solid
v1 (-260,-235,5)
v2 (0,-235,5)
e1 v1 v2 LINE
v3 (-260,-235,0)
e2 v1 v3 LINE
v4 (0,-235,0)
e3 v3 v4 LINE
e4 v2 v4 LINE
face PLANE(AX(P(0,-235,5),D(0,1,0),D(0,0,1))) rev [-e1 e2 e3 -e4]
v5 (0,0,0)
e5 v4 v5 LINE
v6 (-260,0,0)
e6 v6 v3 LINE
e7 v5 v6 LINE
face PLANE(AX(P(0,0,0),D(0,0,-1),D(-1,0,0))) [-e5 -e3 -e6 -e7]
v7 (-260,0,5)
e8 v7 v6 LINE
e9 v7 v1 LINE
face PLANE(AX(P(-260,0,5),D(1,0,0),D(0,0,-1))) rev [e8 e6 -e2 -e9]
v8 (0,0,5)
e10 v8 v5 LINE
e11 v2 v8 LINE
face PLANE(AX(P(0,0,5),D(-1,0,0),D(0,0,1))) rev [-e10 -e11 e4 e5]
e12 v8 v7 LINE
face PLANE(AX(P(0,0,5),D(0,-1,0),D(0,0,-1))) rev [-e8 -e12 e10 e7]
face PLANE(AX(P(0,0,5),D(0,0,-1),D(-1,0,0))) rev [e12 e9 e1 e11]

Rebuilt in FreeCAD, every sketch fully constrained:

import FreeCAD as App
import Part
import Sketcher

doc = App.newDocument("Part")
body = doc.addObject("PartDesign::Body", "Body")

# Sketch on XY plane
sketch1 = body.newObject("Sketcher::SketchObject", "Sketch")
sketch1.AttachmentSupport = (doc.getObject("XY_Plane"), [""])
sketch1.MapMode = "FlatFace"
sketch1.addGeometry(Part.LineSegment(App.Vector(-260, 0, 0), App.Vector(-260, -235, 0)), False)
sketch1.addGeometry(Part.LineSegment(App.Vector(-260, -235, 0), App.Vector(0, -235, 0)), False)
sketch1.addGeometry(Part.LineSegment(App.Vector(0, -235, 0), App.Vector(0, 0, 0)), False)
sketch1.addGeometry(Part.LineSegment(App.Vector(0, 0, 0), App.Vector(-260, 0, 0)), False)
sketch1.addConstraint(Sketcher.Constraint("Coincident", 0, 2, 1, 1))
sketch1.addConstraint(Sketcher.Constraint("Coincident", 1, 2, 2, 1))
sketch1.addConstraint(Sketcher.Constraint("Coincident", 2, 2, 3, 1))
sketch1.addConstraint(Sketcher.Constraint("Coincident", 3, 2, 0, 1))
sketch1.addConstraint(Sketcher.Constraint("Vertical", 0))
sketch1.addConstraint(Sketcher.Constraint("Horizontal", 1))
sketch1.addConstraint(Sketcher.Constraint("Vertical", 2))
sketch1.addConstraint(Sketcher.Constraint("Horizontal", 3))
sketch1.addConstraint(Sketcher.Constraint("Coincident", 2, 2, -1, 1))
sketch1.addConstraint(Sketcher.Constraint("DistanceX", 1, 1, 1, 2, 260.0))
sketch1.addConstraint(Sketcher.Constraint("DistanceY", 0, 2, 0, 1, 235.0))
pad1 = body.newObject("PartDesign::Pad", "Pad")
pad1.Profile = sketch1
pad1.Length = 5

doc.recompute()
